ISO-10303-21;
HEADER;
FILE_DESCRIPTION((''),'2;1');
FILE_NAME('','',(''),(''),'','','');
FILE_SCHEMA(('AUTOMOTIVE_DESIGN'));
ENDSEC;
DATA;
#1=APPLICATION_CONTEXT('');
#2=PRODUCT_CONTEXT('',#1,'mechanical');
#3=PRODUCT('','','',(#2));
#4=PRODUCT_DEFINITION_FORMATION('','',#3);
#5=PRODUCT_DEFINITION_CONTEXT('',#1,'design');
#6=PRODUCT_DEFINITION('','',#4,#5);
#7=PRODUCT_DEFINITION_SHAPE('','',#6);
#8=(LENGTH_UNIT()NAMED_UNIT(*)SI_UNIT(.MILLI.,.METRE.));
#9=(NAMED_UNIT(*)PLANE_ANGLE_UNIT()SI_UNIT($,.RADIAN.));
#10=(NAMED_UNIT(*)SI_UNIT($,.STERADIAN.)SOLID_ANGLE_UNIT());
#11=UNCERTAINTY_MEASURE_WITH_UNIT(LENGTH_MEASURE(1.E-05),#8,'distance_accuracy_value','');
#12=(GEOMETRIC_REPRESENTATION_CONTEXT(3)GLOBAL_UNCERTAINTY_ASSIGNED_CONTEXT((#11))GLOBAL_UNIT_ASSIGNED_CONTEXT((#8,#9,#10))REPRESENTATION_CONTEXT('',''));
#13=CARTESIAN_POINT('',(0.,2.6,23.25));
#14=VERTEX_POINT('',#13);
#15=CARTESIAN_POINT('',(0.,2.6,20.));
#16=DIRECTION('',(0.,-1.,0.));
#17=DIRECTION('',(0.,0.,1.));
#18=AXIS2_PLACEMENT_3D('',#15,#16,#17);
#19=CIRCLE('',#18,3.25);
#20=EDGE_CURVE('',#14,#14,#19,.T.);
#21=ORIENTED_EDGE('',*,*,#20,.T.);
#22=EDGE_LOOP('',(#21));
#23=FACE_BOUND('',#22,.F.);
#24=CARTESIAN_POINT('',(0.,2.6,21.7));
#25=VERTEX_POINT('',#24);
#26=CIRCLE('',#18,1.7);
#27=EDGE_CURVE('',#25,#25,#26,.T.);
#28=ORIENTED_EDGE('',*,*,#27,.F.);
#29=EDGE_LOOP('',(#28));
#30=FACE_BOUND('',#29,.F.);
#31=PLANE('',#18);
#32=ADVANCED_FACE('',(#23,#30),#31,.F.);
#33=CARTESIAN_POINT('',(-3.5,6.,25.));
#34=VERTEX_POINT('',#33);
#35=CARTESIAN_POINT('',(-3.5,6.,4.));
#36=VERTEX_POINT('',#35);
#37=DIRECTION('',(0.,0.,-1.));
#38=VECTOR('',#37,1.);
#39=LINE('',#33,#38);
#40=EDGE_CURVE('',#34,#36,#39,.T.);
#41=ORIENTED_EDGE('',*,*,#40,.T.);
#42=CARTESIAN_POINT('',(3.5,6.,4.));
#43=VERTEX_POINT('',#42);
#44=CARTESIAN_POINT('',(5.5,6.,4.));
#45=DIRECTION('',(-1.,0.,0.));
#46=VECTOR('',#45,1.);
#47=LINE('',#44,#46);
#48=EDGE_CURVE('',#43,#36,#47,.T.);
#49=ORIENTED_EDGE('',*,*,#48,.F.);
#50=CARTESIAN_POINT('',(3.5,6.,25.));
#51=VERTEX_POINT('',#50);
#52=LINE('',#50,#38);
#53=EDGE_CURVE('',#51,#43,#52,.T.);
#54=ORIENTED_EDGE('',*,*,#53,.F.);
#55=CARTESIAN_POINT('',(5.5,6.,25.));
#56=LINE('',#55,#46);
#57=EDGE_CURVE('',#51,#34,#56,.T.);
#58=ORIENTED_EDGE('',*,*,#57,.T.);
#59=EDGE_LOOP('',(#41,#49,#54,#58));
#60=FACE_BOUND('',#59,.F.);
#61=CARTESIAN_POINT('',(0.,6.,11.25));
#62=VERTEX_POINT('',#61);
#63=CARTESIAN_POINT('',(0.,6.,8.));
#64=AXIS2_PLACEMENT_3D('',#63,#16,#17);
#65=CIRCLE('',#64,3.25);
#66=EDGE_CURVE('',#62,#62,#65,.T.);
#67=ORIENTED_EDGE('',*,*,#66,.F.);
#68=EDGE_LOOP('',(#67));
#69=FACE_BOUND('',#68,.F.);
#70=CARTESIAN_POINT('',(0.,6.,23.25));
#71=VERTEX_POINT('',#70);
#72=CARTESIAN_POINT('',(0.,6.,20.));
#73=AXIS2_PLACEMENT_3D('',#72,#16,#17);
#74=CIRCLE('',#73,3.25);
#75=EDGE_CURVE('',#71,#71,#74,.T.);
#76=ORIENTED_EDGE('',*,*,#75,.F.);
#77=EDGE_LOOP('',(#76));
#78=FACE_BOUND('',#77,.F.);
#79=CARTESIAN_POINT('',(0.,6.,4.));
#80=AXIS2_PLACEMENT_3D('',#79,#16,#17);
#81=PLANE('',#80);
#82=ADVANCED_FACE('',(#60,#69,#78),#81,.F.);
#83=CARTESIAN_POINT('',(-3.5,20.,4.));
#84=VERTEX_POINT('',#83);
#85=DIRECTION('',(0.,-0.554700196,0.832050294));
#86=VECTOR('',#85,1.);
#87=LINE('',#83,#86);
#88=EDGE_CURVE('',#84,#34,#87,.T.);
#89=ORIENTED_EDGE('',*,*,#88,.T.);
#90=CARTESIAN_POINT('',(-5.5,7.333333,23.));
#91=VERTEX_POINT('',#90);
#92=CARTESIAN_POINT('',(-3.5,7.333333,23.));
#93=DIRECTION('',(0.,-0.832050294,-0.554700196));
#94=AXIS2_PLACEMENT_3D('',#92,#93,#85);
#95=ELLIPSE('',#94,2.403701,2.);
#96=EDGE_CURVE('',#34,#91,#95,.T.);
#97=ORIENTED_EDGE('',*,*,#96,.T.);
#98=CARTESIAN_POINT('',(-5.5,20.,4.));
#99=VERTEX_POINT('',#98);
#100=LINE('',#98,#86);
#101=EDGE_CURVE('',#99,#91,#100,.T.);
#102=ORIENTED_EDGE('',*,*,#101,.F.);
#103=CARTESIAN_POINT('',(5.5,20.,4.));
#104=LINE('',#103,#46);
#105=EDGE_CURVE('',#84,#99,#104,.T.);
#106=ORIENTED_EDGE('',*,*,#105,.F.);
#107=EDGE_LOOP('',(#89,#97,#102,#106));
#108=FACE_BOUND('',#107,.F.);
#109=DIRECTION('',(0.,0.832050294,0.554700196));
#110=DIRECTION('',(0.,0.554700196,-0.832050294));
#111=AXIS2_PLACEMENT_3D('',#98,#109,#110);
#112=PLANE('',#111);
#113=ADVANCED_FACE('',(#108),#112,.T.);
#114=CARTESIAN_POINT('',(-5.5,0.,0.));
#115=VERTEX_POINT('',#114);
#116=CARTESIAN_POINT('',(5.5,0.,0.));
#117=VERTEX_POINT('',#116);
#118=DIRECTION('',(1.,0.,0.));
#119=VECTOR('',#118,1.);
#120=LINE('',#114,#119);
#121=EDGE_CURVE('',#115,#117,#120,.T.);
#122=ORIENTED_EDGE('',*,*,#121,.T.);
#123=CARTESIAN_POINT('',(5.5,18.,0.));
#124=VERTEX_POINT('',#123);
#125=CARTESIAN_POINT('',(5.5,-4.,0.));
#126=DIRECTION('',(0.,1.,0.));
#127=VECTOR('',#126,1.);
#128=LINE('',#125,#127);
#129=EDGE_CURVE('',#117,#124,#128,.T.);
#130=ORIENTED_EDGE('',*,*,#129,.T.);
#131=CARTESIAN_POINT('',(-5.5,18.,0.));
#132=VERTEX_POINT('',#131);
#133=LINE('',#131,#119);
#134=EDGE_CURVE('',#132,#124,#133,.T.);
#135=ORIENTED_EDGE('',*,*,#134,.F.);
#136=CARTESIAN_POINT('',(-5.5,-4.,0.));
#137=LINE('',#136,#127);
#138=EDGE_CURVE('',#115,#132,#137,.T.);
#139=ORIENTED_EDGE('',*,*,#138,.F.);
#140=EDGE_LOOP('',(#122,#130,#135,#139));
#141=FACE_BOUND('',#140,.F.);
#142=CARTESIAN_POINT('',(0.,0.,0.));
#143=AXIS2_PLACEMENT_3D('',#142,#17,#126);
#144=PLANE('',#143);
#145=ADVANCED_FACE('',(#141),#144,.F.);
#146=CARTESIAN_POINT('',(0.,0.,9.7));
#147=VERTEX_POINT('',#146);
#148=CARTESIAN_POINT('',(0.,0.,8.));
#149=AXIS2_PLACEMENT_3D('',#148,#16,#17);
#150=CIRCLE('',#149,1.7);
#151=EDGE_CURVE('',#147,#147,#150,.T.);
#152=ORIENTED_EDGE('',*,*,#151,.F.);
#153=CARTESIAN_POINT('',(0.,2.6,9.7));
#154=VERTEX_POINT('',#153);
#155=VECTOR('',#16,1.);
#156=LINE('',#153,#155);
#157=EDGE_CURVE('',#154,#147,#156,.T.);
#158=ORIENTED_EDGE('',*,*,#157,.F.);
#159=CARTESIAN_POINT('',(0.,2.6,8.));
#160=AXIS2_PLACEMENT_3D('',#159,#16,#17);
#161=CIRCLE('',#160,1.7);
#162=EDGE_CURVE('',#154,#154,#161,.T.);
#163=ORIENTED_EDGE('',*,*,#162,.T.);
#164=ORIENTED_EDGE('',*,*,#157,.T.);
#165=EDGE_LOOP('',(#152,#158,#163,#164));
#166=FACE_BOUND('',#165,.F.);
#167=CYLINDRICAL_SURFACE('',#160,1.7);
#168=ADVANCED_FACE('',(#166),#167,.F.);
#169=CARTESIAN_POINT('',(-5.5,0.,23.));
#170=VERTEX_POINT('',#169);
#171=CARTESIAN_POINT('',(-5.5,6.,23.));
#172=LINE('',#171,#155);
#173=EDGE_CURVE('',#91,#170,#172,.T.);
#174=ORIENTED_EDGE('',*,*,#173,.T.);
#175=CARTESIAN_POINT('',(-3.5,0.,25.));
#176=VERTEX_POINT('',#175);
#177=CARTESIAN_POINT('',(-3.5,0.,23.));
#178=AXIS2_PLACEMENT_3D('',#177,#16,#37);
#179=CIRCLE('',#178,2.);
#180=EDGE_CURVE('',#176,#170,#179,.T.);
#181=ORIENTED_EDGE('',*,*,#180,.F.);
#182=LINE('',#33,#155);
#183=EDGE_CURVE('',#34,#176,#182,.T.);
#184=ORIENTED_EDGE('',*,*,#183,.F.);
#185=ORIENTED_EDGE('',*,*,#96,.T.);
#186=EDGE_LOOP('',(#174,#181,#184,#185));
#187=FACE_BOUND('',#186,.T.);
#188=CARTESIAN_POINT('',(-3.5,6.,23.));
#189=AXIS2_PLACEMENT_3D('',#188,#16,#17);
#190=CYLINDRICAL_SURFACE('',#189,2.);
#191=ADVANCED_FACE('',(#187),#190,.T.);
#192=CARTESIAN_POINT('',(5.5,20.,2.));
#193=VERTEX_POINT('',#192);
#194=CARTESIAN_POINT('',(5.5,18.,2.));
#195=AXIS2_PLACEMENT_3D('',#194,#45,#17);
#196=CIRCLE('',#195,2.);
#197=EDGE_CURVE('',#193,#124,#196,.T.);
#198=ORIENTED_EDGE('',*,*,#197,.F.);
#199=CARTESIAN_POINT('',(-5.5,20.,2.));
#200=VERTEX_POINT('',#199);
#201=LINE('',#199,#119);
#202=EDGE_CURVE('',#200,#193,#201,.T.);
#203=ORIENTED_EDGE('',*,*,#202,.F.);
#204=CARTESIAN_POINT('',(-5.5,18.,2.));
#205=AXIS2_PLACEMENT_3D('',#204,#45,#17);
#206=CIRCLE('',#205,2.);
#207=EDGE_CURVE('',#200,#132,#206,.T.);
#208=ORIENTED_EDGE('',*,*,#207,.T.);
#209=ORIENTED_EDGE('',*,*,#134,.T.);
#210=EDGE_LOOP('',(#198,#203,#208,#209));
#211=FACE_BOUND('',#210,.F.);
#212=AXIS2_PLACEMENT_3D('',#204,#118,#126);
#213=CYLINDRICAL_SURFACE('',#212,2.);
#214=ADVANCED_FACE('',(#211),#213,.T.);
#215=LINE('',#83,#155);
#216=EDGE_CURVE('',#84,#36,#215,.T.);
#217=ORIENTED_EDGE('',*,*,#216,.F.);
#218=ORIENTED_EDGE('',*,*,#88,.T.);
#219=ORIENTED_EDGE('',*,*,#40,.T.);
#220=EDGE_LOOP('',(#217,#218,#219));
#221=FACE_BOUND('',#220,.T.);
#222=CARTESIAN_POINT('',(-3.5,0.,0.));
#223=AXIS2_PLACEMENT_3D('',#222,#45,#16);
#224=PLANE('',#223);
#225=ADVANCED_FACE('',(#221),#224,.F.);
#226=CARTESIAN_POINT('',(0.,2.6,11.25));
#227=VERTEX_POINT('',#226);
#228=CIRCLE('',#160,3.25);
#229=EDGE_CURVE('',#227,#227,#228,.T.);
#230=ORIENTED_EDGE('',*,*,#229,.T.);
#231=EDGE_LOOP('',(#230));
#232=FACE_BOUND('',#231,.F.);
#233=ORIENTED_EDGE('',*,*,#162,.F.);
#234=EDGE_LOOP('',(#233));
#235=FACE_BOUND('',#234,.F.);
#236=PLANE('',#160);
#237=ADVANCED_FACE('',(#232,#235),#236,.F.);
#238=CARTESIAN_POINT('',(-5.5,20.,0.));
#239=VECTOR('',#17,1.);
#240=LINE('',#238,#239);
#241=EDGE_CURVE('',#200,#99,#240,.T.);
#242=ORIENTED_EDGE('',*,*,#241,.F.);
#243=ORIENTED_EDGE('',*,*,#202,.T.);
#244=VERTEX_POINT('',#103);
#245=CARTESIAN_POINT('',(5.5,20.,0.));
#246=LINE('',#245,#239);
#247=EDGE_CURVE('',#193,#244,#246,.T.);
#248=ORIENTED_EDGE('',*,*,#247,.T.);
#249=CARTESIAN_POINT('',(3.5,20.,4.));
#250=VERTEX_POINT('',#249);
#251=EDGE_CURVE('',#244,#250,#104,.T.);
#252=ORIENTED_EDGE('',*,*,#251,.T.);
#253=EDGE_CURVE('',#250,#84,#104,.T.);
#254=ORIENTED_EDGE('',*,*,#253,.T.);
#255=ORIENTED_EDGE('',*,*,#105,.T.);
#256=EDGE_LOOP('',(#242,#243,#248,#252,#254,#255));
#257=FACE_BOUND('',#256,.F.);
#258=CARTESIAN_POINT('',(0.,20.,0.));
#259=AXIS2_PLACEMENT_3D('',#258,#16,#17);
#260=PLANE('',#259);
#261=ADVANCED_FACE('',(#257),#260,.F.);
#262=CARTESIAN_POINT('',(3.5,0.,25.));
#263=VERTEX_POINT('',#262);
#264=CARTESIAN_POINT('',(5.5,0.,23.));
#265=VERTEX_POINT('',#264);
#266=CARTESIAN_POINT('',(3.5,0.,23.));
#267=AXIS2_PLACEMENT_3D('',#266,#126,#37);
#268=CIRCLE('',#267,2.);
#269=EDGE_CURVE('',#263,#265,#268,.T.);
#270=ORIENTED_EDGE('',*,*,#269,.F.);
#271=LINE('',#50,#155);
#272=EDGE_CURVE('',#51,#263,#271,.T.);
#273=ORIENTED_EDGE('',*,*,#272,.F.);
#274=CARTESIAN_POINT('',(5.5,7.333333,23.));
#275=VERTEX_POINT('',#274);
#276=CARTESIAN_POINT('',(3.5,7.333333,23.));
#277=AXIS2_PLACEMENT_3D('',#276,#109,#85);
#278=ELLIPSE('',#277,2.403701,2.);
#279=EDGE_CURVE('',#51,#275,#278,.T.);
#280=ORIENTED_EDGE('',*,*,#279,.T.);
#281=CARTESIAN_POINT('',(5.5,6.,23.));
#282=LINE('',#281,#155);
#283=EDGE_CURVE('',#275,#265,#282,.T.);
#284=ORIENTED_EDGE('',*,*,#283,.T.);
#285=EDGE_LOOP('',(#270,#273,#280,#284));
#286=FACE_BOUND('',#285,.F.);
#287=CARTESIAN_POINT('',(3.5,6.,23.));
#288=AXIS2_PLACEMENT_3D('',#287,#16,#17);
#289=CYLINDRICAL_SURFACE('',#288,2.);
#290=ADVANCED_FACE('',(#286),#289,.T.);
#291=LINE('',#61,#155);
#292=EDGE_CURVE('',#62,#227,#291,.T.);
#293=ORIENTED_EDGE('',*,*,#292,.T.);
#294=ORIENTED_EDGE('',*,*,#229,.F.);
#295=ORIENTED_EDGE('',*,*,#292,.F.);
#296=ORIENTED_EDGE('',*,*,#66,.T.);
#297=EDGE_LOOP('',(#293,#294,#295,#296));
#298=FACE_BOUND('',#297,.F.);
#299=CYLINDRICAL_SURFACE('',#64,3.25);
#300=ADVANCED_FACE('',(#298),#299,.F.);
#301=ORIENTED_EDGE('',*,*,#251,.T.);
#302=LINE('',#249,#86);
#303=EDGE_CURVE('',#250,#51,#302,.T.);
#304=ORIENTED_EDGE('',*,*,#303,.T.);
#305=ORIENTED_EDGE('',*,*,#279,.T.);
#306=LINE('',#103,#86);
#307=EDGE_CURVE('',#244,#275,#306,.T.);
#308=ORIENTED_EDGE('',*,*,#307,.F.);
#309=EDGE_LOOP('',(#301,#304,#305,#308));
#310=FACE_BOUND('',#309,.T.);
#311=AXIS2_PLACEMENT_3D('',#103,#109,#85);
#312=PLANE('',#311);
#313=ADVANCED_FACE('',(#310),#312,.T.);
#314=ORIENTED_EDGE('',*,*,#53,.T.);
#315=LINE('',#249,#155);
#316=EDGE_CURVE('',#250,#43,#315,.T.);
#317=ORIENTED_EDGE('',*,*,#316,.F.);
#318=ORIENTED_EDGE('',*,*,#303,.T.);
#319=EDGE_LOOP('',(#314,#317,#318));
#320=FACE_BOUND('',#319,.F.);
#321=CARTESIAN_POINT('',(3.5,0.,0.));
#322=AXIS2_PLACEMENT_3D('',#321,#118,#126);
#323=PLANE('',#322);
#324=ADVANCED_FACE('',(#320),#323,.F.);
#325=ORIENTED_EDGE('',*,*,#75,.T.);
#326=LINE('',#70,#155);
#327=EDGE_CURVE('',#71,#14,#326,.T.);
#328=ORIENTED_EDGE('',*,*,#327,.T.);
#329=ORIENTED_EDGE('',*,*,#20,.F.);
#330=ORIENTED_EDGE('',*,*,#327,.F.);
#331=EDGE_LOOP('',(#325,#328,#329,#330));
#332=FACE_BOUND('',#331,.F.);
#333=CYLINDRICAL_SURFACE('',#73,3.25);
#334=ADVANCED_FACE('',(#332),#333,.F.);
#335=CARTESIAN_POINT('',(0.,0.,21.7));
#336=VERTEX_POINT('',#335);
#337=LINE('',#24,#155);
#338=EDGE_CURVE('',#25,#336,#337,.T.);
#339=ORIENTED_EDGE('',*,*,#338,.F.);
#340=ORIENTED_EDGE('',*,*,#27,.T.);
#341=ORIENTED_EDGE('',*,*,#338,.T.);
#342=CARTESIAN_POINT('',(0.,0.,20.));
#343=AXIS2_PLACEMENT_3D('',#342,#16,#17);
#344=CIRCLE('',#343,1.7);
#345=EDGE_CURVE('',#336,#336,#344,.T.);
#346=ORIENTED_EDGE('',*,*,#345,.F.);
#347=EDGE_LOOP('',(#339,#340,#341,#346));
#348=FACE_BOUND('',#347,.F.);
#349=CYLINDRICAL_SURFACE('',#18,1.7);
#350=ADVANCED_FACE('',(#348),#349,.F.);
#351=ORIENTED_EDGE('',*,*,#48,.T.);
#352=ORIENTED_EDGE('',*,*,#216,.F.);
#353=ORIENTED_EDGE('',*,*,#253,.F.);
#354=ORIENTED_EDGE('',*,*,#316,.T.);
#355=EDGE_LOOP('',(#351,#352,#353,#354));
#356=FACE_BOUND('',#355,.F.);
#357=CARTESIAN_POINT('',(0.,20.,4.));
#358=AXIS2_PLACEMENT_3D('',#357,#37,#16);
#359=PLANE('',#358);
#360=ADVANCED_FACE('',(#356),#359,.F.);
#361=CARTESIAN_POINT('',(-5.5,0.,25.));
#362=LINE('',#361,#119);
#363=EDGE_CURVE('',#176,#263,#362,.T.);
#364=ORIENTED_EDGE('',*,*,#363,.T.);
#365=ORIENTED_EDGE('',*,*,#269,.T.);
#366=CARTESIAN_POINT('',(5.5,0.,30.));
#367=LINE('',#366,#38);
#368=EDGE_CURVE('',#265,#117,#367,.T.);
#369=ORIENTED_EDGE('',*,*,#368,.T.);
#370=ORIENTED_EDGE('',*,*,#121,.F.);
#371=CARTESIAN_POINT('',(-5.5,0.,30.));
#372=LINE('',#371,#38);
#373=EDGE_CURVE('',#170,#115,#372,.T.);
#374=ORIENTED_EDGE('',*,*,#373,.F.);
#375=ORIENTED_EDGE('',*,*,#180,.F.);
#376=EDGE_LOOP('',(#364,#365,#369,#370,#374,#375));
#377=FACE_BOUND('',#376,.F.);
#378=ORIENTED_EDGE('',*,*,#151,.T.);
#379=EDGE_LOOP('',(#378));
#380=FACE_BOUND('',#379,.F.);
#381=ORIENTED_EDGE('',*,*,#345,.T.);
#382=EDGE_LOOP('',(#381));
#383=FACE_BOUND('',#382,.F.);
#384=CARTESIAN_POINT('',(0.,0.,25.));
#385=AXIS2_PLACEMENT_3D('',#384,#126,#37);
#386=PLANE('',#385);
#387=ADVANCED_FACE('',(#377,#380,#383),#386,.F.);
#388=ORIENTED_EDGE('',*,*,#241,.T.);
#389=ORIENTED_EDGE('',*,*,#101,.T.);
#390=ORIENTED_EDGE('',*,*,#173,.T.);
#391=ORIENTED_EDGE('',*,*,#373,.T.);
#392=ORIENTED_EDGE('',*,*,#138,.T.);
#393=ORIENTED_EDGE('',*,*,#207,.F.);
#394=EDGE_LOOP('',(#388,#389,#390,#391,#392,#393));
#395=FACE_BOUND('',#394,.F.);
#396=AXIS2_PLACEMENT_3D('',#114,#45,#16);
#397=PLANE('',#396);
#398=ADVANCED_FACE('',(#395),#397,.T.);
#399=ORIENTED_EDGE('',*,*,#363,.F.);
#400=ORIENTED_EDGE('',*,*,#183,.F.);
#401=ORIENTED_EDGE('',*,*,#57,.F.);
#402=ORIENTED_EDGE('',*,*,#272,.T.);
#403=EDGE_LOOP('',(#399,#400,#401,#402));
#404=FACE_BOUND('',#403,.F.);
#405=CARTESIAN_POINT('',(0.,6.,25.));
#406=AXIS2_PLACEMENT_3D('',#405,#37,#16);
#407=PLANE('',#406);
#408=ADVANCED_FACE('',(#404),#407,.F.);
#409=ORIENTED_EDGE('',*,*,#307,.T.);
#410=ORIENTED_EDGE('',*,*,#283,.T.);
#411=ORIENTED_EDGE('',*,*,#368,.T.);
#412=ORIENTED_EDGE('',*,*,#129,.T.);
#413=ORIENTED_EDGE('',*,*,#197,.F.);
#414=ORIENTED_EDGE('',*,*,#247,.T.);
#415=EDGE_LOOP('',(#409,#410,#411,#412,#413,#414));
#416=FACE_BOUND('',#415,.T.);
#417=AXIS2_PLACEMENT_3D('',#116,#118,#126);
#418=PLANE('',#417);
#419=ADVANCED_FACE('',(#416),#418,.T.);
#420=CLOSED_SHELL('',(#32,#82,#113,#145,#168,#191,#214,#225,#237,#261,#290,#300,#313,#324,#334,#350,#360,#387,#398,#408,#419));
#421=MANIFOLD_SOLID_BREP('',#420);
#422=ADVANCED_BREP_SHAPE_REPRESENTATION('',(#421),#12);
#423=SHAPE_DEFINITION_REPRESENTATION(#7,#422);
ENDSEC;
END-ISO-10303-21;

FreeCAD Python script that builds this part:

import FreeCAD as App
import Part
import Sketcher
from FreeCAD import Vector
Q = App.Units.Quantity


def edges_at(feature, points):
    """Names of the edges that pass closest to the given points."""
    edges = feature.Shape.Edges
    near = lambda p: min(range(len(edges)), key=lambda i: edges[i].distToShape(Part.Vertex(*p))[0])
    return sorted({f"Edge{near(p) + 1}" for p in points})


def add_polygon(sketch, points):
    """Adds a closed chain of lines whose ends are joined by coincident constraints."""
    first, n = sketch.GeometryCount, len(points)
    for a, b in zip(points, points[1:] + points[:1]):
        sketch.addGeometry(Part.LineSegment(App.Vector(*a, 0), App.Vector(*b, 0)), False)
    for i in range(n):
        sketch.addConstraint(Sketcher.Constraint("Coincident", first + i, 2, first + (i + 1) % n, 1))

doc = App.newDocument("Part")
params = doc.addObject("Spreadsheet::Sheet", "Params")
for row, (alias, value) in enumerate([
    ("sketch1_width", "6 mm"),
    ("sketch1_width2", "20 mm"),
    ("sketch1_height", "25 mm"),
    ("sketch1_height2", "4 mm"),
    ("pad1_length", "11 mm"),
    ("sketch2_diameter", "3.4 mm"),
    ("hole_diameter", "3.4 mm"),
    ("hole_cbore_diameter", "6.5 mm"),
    ("hole_cbore_depth", "3.4 mm"),
    ("sketch3_width", "14 mm"),
    ("sketch3_height", "21 mm"),
    ("pad2_length", "2 mm"),
    ("fillet_radius", "2 mm"),
], start=1):
    params.set(f"A{row}", alias)
    params.set(f"B{row}", "=" + value)
    params.setAlias(f"B{row}", alias)

body = doc.addObject("PartDesign::Body", "Body")

sketch1 = body.newObject("Sketcher::SketchObject", "Sketch")
sketch1.AttachmentSupport = (doc.getObject("YZ_Plane"), [""])
sketch1.MapMode = "FlatFace"
add_polygon(sketch1, [(6, 25), (0, 25), (0, 0), (20, 0), (20, 4), (6, 4)])
sketch1.addConstraint([
    Sketcher.Constraint("Horizontal", 0),
    Sketcher.Constraint("Vertical", 1),
    Sketcher.Constraint("Horizontal", 2),
    Sketcher.Constraint("Vertical", 3),
    Sketcher.Constraint("Horizontal", 4),
    Sketcher.Constraint("Vertical", 5),
    Sketcher.Constraint("Coincident", 1, 2, -1, 1),
    Sketcher.Constraint("DistanceX", 0, 2, 0, 1, Q("6 mm")),
    Sketcher.Constraint("DistanceX", 2, 1, 2, 2, Q("20 mm")),
    Sketcher.Constraint("DistanceY", 1, 2, 1, 1, Q("25 mm")),
    Sketcher.Constraint("DistanceY", 3, 1, 3, 2, Q("4 mm")),
])
sketch1.setExpression("Constraints[13]", "Params.sketch1_width")
sketch1.setExpression("Constraints[14]", "Params.sketch1_width2")
sketch1.setExpression("Constraints[15]", "Params.sketch1_height")
sketch1.setExpression("Constraints[16]", "Params.sketch1_height2")
pad1 = body.newObject("PartDesign::Pad", "Pad")
pad1.Profile = sketch1
pad1.setExpression("Length", "Params.pad1_length")
pad1.Midplane = True

sketch2 = body.newObject("Sketcher::SketchObject", "Sketch001")
sketch2.AttachmentSupport = (doc.getObject("XZ_Plane"), [""])
sketch2.MapMode = "FlatFace"
sketch2.AttachmentOffset = App.Placement(Vector(0, 0, -6), App.Rotation())
sketch2.addGeometry([
    Part.Circle(Vector(0, 20, 0), Vector(0, 0, 1), 1.7),
    Part.Circle(Vector(0, 8, 0), Vector(0, 0, 1), 1.7),
], False)
sketch2.addConstraint([
    Sketcher.Constraint("Equal", 0, 1),
    Sketcher.Constraint("PointOnObject", 0, 3, -2),
    Sketcher.Constraint("PointOnObject", 1, 3, -2),
    Sketcher.Constraint("Diameter", 0, Q("3.4 mm")),
    Sketcher.Constraint("DistanceY", -1, 1, 0, 3, Q("20 mm")),
    Sketcher.Constraint("DistanceY", -1, 1, 1, 3, Q("8 mm")),
])
sketch2.setExpression("Constraints[3]", "Params.sketch2_diameter")
doc.recompute()
hole = body.newObject("PartDesign::Hole", "Hole")
hole.Profile = sketch2
hole.ThreadType = "None"
hole.setExpression("Diameter", "Params.hole_diameter")
hole.DepthType = "ThroughAll"
hole.HoleCutType = "Counterbore"
hole.setExpression("HoleCutDiameter", "Params.hole_cbore_diameter")
hole.setExpression("HoleCutDepth", "Params.hole_cbore_depth")
hole.Reversed = True

sketch3 = body.newObject("Sketcher::SketchObject", "Sketch002")
sketch3.AttachmentSupport = (doc.getObject("YZ_Plane"), [""])
sketch3.MapMode = "FlatFace"
sketch3.AttachmentOffset = App.Placement(Vector(0, 0, 5.5), App.Rotation())
add_polygon(sketch3, [(6, 4), (20, 4), (6, 25)])
sketch3.addConstraint([
    Sketcher.Constraint("Horizontal", 0),
    Sketcher.Constraint("Vertical", 2),
    Sketcher.Constraint("DistanceX", 0, 1, 0, 2, Q("14 mm")),
    Sketcher.Constraint("DistanceY", 2, 2, 2, 1, Q("21 mm")),
    Sketcher.Constraint("DistanceX", -1, 1, 0, 2, Q("20 mm")),
    Sketcher.Constraint("DistanceY", -1, 1, 0, 2, Q("4 mm")),
])
sketch3.setExpression("Constraints[5]", "Params.sketch3_width")
sketch3.setExpression("Constraints[6]", "Params.sketch3_height")
pad2 = body.newObject("PartDesign::Pad", "Pad001")
pad2.Profile = sketch3
pad2.setExpression("Length", "Params.pad2_length")
pad2.Reversed = True
doc.recompute()

mirrored = body.newObject("PartDesign::Mirrored", "Mirrored")
mirrored.Originals = [pad2]
mirrored.MirrorPlane = (doc.getObject("YZ_Plane"), [""])
body.Tip = mirrored
doc.recompute()

fillet = body.newObject("PartDesign::Fillet", "Fillet")
fillet.Base = (mirrored, edges_at(mirrored, [(0, 20, 0), (5.5, 3, 25), (-5.5, 3, 25)]))
fillet.setExpression("Radius", "Params.fillet_radius")

doc.recompute()
